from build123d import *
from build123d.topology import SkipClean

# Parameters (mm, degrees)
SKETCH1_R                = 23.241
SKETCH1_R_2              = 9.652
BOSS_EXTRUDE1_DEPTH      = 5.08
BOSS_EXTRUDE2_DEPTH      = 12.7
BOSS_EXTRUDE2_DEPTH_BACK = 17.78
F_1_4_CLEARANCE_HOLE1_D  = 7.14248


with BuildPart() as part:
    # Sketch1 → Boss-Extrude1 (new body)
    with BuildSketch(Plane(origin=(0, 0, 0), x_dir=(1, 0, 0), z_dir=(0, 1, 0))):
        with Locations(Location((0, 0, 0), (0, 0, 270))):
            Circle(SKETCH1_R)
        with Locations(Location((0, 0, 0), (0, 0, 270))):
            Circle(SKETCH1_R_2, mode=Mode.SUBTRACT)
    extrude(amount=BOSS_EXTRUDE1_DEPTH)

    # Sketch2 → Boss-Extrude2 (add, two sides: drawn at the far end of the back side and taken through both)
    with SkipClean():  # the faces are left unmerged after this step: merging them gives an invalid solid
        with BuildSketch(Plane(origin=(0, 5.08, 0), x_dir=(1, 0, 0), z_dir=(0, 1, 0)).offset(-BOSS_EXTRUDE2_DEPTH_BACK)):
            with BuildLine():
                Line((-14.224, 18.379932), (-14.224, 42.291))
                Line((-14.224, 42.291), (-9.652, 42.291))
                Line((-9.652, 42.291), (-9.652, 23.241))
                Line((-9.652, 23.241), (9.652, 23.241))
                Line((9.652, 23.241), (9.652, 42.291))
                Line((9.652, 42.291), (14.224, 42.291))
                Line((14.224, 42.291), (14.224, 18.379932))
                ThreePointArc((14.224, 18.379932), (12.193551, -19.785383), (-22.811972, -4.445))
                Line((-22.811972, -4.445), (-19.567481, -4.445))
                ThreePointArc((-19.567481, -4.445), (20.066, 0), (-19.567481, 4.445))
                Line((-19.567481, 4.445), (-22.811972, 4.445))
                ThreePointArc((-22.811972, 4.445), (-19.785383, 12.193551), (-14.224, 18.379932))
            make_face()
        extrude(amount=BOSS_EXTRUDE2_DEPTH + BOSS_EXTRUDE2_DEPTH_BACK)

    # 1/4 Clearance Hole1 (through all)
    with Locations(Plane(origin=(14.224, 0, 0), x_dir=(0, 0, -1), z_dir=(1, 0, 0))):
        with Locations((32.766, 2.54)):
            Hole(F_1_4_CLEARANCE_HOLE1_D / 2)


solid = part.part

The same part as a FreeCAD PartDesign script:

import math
import FreeCAD as App
import Part
import Sketcher
Q = App.Units.Quantity

doc = App.newDocument("Part")
body = doc.addObject("PartDesign::Body", "Body")

sketch1 = body.newObject("Sketcher::SketchObject", "Sketch")
sketch1.AttachmentSupport = (doc.getObject("XZ_Plane"), [""])
sketch1.MapMode = "FlatFace"
sketch1.addGeometry(Part.Circle(App.Vector(0, 0, 0), App.Vector(0, 0, 1), 23.241), False)
sketch1.addGeometry(Part.Circle(App.Vector(0, 0, 0), App.Vector(0, 0, 1), 9.652), False)
sketch1.addConstraint(Sketcher.Constraint("Coincident", 0, 3, -1, 1))
sketch1.addConstraint(Sketcher.Constraint("Coincident", 1, 3, -1, 1))
sketch1.addConstraint(Sketcher.Constraint("Diameter", 0, Q("1.83 in")))
sketch1.addConstraint(Sketcher.Constraint("Diameter", 1, Q("0.76 in")))
pad1 = body.newObject("PartDesign::Pad", "Pad")
pad1.Profile = sketch1
pad1.Length = Q("0.2 in")
pad1.Reversed = True

sketch2 = body.newObject("Sketcher::SketchObject", "Sketch001")
sketch2.AttachmentSupport = (doc.getObject("XZ_Plane"), [""])
sketch2.MapMode = "FlatFace"
sketch2.AttachmentOffset = App.Placement(App.Vector(0, 0, -0.2 * 25.4), App.Rotation())
sketch2.addGeometry(Part.LineSegment(App.Vector(-14.224, -42.291, 0), App.Vector(-14.224, -18.379932, 0)), False)
sketch2.addGeometry(Part.ArcOfCircle(Part.Circle(App.Vector(0.000005, 0.000003, 0), App.Vector(0, 0, 1), 23.241006), math.radians(-168.973853), math.radians(-127.735845)), False)
sketch2.addGeometry(Part.LineSegment(App.Vector(-22.811972, -4.445, 0), App.Vector(-19.567481, -4.445, 0)), False)
sketch2.addGeometry(Part.ArcOfCircle(Part.Circle(App.Vector(0, 0, 0), App.Vector(0, 0, 1), 20.066), math.radians(-167.201734), math.radians(167.201734)), False)
sketch2.addGeometry(Part.LineSegment(App.Vector(-19.567481, 4.445, 0), App.Vector(-22.811972, 4.445, 0)), False)
sketch2.addGeometry(Part.ArcOfCircle(Part.Circle(App.Vector(0, 0, 0), App.Vector(0, 0, 1), 23.241), math.radians(-52.264159), math.radians(168.973859)), False)
sketch2.addGeometry(Part.LineSegment(App.Vector(14.224, -18.379932, 0), App.Vector(14.224, -42.291, 0)), False)
sketch2.addGeometry(Part.LineSegment(App.Vector(14.224, -42.291, 0), App.Vector(9.652, -42.291, 0)), False)
sketch2.addGeometry(Part.LineSegment(App.Vector(9.652, -42.291, 0), App.Vector(9.652, -23.241, 0)), False)
sketch2.addGeometry(Part.LineSegment(App.Vector(9.652, -23.241, 0), App.Vector(-9.652, -23.241, 0)), False)
sketch2.addGeometry(Part.LineSegment(App.Vector(-9.652, -23.241, 0), App.Vector(-9.652, -42.291, 0)), False)
sketch2.addGeometry(Part.LineSegment(App.Vector(-9.652, -42.291, 0), App.Vector(-14.224, -42.291, 0)), False)
sketch2.addConstraint(Sketcher.Constraint("Coincident", 0, 2, 1, 2))
sketch2.addConstraint(Sketcher.Constraint("Coincident", 1, 1, 2, 1))
sketch2.addConstraint(Sketcher.Constraint("Coincident", 2, 2, 3, 1))
sketch2.addConstraint(Sketcher.Constraint("Coincident", 3, 2, 4, 1))
sketch2.addConstraint(Sketcher.Constraint("Coincident", 4, 2, 5, 2))
sketch2.addConstraint(Sketcher.Constraint("Coincident", 5, 1, 6, 1))
sketch2.addConstraint(Sketcher.Constraint("Coincident", 6, 2, 7, 1))
sketch2.addConstraint(Sketcher.Constraint("Coincident", 7, 2, 8, 1))
sketch2.addConstraint(Sketcher.Constraint("Coincident", 8, 2, 9, 1))
sketch2.addConstraint(Sketcher.Constraint("Coincident", 9, 2, 10, 1))
sketch2.addConstraint(Sketcher.Constraint("Coincident", 10, 2, 11, 1))
sketch2.addConstraint(Sketcher.Constraint("Coincident", 11, 2, 0, 1))
sketch2.addConstraint(Sketcher.Constraint("Vertical", 0))
sketch2.addConstraint(Sketcher.Constraint("Horizontal", 2))
sketch2.addConstraint(Sketcher.Constraint("Horizontal", 4))
sketch2.addConstraint(Sketcher.Constraint("Vertical", 6))
sketch2.addConstraint(Sketcher.Constraint("Horizontal", 7))
sketch2.addConstraint(Sketcher.Constraint("Vertical", 8))
sketch2.addConstraint(Sketcher.Constraint("Horizontal", 9))
sketch2.addConstraint(Sketcher.Constraint("Vertical", 10))
sketch2.addConstraint(Sketcher.Constraint("Horizontal", 11))
sketch2.addConstraint(Sketcher.Constraint("Coincident", 1, 3, -1, 1))
sketch2.addConstraint(Sketcher.Constraint("Coincident", 3, 3, -1, 1))
sketch2.addConstraint(Sketcher.Constraint("Coincident", 5, 3, -1, 1))
sketch2.addConstraint(Sketcher.Constraint("Symmetric", 0, 2, 5, 1, -2))
sketch2.addConstraint(Sketcher.Constraint("Symmetric", 7, 2, 10, 2, -2))
sketch2.addConstraint(Sketcher.Constraint("Vertical", 2, 2, 3, 2))
sketch2.addConstraint(Sketcher.Constraint("Radius", 3, Q("0.79 in")))
sketch2.addConstraint(Sketcher.Constraint("Radius", 5, Q("0.915 in")))
sketch2.addConstraint(Sketcher.Constraint("DistanceX", 7, 2, 7, 1, Q("0.18 in")))
sketch2.addConstraint(Sketcher.Constraint("DistanceX", 9, 2, 9, 1, Q("0.76 in")))
sketch2.addConstraint(Sketcher.Constraint("DistanceY", 8, 1, 8, 2, Q("0.75 in")))
sketch2.addConstraint(Sketcher.Constraint("DistanceY", 2, 2, 3, 2, Q("0.35 in")))
sketch2.addConstraint(Sketcher.Constraint("DistanceY", 9, 2, 2, 2, Q("0.74 in")))
pad2 = body.newObject("PartDesign::Pad", "Pad001")
pad2.Profile = sketch2
pad2.Type = "TwoLengths"
pad2.Length = Q("0.5 in")
pad2.Length2 = Q("0.7 in")
pad2.Reversed = True

sketch3 = body.newObject("Sketcher::SketchObject", "Sketch002")
sketch3.AttachmentSupport = (doc.getObject("YZ_Plane"), [""])
sketch3.MapMode = "FlatFace"
sketch3.AttachmentOffset = App.Placement(App.Vector(0, 0, 0.56 * 25.4), App.Rotation())
sketch3.addGeometry(Part.Circle(App.Vector(2.54, -32.766, 0), App.Vector(0, 0, 1), 3.57124), False)
sketch3.addConstraint(Sketcher.Constraint("Diameter", 0, Q("0.2812 in")))
sketch3.addConstraint(Sketcher.Constraint("DistanceX", -1, 1, 0, 3, Q("0.1 in")))
sketch3.addConstraint(Sketcher.Constraint("DistanceY", 0, 3, -1, 1, Q("1.29 in")))
doc.recompute()
hole = body.newObject("PartDesign::Hole", "Hole")
hole.Profile = sketch3
hole.ThreadType = "None"
hole.Diameter = Q("0.2812 in")
hole.DepthType = "ThroughAll"

doc.recompute()
